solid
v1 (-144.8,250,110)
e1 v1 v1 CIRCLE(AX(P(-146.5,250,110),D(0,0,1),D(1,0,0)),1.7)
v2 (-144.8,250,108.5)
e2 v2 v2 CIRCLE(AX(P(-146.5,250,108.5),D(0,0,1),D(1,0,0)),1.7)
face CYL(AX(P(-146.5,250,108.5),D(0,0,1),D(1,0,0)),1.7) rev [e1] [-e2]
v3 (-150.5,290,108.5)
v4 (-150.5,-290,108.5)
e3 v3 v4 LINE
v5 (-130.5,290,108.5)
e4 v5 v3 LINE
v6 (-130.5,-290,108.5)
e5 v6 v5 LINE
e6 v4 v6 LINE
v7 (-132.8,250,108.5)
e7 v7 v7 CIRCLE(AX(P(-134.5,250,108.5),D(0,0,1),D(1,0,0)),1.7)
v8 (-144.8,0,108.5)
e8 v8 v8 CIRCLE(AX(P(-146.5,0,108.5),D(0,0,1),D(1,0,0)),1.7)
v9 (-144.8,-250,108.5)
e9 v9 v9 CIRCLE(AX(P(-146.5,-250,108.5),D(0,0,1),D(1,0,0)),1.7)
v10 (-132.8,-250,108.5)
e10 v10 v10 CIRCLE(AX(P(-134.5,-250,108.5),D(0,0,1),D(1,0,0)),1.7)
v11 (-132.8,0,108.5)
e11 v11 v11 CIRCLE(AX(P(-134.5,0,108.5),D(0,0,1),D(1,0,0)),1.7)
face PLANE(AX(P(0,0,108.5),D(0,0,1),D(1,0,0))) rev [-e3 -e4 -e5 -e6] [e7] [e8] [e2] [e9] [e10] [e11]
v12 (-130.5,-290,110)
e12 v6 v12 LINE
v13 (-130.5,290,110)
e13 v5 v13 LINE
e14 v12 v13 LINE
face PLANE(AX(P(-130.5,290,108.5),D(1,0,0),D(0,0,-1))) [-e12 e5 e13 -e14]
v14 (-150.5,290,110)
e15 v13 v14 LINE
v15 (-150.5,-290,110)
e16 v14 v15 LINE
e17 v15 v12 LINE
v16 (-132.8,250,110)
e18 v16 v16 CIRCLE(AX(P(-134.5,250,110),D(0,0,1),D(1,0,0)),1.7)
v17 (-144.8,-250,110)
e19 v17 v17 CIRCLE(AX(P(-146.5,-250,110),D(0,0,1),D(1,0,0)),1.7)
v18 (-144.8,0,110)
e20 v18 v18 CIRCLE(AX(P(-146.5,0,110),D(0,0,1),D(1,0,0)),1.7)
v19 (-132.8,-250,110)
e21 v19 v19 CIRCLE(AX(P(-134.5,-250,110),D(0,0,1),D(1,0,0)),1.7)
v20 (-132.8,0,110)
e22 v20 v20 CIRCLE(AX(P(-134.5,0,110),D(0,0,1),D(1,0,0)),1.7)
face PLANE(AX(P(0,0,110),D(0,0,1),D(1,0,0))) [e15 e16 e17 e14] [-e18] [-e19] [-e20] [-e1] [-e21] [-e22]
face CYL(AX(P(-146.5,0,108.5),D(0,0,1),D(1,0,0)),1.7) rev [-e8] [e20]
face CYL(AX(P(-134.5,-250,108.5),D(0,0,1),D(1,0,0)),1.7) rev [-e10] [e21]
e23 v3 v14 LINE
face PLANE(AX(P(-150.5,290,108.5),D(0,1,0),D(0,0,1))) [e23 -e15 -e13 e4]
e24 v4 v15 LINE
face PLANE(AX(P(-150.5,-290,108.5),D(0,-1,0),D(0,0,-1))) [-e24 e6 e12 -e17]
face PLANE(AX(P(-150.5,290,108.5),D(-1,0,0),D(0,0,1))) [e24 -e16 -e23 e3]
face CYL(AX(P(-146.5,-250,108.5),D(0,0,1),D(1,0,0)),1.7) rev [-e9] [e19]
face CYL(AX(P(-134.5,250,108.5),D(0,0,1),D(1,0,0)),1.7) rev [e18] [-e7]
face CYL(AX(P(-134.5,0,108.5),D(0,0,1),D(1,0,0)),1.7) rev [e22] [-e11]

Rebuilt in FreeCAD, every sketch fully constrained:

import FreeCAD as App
import Part
import Sketcher

V = App.Vector
Q = App.Units.Quantity

doc = App.newDocument("Part")
params = doc.addObject("Spreadsheet::Sheet", "Params")
for row, (alias, value) in enumerate([
    ("sketch1_diameter", "3.4 mm"),
    ("sketch1_width", "20 mm"),
    ("sketch1_height", "580 mm"),
    ("pad1_length", "1.5 mm"),
], start=1):
    params.set(f"A{row}", alias)
    params.set(f"B{row}", "=" + value)
    params.setAlias(f"B{row}", alias)

body = doc.addObject("PartDesign::Body", "Body")

# Sketch on XY plane
sketch1 = body.newObject("Sketcher::SketchObject", "Sketch")
sketch1.AttachmentSupport = (doc.getObject("XY_Plane"), [""])
sketch1.MapMode = "FlatFace"
sketch1.AttachmentOffset = App.Placement(V(0, 0, 110), App.Rotation())
sketch1.addGeometry([
    Part.LineSegment(V(-150.5, 290, 0), V(-150.5, -290, 0)),  # 0
    Part.LineSegment(V(-150.5, -290, 0), V(-130.5, -290, 0)),  # 1
    Part.LineSegment(V(-130.5, -290, 0), V(-130.5, 290, 0)),  # 2
    Part.LineSegment(V(-130.5, 290, 0), V(-150.5, 290, 0)),  # 3
    Part.Circle(V(-146.5, -250, 0), V(0, 0, 1), 1.7),  # 4
    Part.Circle(V(-134.5, -250, 0), V(0, 0, 1), 1.7),  # 5
    Part.Circle(V(-146.5, 0, 0), V(0, 0, 1), 1.7),  # 6
    Part.Circle(V(-146.5, 250, 0), V(0, 0, 1), 1.7),  # 7
    Part.Circle(V(-134.5, 0, 0), V(0, 0, 1), 1.7),  # 8
    Part.Circle(V(-134.5, 250, 0), V(0, 0, 1), 1.7),  # 9
], False)
sketch1.addConstraint([
    Sketcher.Constraint("Coincident", 0, 2, 1, 1),
    Sketcher.Constraint("Coincident", 1, 2, 2, 1),
    Sketcher.Constraint("Coincident", 2, 2, 3, 1),
    Sketcher.Constraint("Coincident", 3, 2, 0, 1),
    Sketcher.Constraint("Vertical", 0),
    Sketcher.Constraint("Horizontal", 1),
    Sketcher.Constraint("Vertical", 2),
    Sketcher.Constraint("Horizontal", 3),
    Sketcher.Constraint("Equal", 4, 5),
    Sketcher.Constraint("Equal", 5, 6),
    Sketcher.Constraint("Equal", 6, 7),
    Sketcher.Constraint("Equal", 7, 8),
    Sketcher.Constraint("Equal", 8, 9),
    Sketcher.Constraint("Symmetric", 4, 3, 7, 3, -1),
    Sketcher.Constraint("Symmetric", 5, 3, 9, 3, -1),
    Sketcher.Constraint("PointOnObject", 6, 3, -1),
    Sketcher.Constraint("PointOnObject", 8, 3, -1),
    Sketcher.Constraint("Horizontal", 4, 3, 5, 3),
    Sketcher.Constraint("Vertical", 4, 3, 6, 3),
    Sketcher.Constraint("Vertical", 5, 3, 8, 3),
    Sketcher.Constraint("Diameter", 4, Q("3.4 mm")),
    Sketcher.Constraint("DistanceX", 1, 1, 1, 2, Q("20 mm")),
    Sketcher.Constraint("DistanceY", 0, 2, 0, 1, Q("580 mm")),
    Sketcher.Constraint("DistanceY", 4, 3, -1, 1, Q("250 mm")),
    Sketcher.Constraint("DistanceY", 0, 2, -1, 1, Q("290 mm")),
    Sketcher.Constraint("DistanceX", 4, 3, 5, 3, Q("12 mm")),
    Sketcher.Constraint("DistanceX", 0, 2, 4, 3, Q("4 mm")),
    Sketcher.Constraint("DistanceX", 4, 3, -1, 1, Q("146.5 mm")),
])
sketch1.setExpression("Constraints[20]", "Params.sketch1_diameter")
sketch1.setExpression("Constraints[21]", "Params.sketch1_width")
sketch1.setExpression("Constraints[22]", "Params.sketch1_height")
pad1 = body.newObject("PartDesign::Pad", "Pad")
pad1.Profile = sketch1
pad1.setExpression("Length", "Params.pad1_length")
pad1.Reversed = True

doc.recompute()
